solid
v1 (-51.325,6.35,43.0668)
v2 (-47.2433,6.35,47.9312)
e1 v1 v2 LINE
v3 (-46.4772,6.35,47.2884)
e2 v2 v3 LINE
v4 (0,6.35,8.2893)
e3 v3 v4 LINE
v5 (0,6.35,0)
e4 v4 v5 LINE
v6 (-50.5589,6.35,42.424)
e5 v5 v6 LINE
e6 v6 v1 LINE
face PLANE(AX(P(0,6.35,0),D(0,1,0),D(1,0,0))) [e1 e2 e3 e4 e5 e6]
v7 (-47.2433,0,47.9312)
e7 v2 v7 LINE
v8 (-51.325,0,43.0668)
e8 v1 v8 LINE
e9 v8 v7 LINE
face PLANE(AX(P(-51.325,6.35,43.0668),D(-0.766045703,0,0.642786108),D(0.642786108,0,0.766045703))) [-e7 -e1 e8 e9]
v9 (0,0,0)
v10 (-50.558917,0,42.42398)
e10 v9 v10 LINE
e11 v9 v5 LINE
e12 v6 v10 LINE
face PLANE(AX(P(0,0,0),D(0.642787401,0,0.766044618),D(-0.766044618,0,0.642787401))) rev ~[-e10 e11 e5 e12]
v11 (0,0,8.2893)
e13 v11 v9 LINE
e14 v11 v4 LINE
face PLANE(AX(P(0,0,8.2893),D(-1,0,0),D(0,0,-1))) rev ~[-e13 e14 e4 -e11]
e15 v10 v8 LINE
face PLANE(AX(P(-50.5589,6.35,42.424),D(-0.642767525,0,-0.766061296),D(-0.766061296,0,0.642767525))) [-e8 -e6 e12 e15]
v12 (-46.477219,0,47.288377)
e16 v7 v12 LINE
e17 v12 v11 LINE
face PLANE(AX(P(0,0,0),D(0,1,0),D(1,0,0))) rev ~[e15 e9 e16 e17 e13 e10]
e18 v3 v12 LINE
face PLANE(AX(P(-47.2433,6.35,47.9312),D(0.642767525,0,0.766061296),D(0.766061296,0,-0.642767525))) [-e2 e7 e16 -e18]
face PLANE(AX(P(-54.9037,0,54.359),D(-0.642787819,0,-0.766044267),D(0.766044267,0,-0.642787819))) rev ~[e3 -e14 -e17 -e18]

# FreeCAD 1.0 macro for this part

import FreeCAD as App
import Part
import Sketcher
Q = App.Units.Quantity


def add_polygon(sketch, points):
    """Adds a closed chain of lines whose ends are joined by coincident constraints."""
    first, n = sketch.GeometryCount, len(points)
    for a, b in zip(points, points[1:] + points[:1]):
        sketch.addGeometry(Part.LineSegment(App.Vector(*a, 0), App.Vector(*b, 0)), False)
    for i in range(n):
        sketch.addConstraint(Sketcher.Constraint("Coincident", first + i, 2, first + (i + 1) % n, 1))

doc = App.newDocument("Part")
params = doc.addObject("Spreadsheet::Sheet", "Params")
for row, (alias, value) in enumerate([
    ("sketch1_length", "77 mm"),
    ("sketch1_length2", "6.35 mm"),
    ("pad1_length", "6.35 mm"),
    ("sketch2_length", "7 mm"),
    ("sketch2_length2", "4 mm"),
    ("sketch2_length3", "6.35 mm"),
    ("pocket1_length", "10 mm"),
    ("sketch3_length", "1 mm"),
    ("sketch3_length2", "6.35 mm"),
    ("pad2_length", "6.35 mm"),
], start=1):
    params.set(f"A{row}", alias)
    params.set(f"B{row}", "=" + value)
    params.setAlias(f"B{row}", alias)

body = doc.addObject("PartDesign::Body", "Body")

# Sketch on XZ plane
sketch1 = doc.addObject("Sketcher::SketchObject", "Sketch")
body.addObject(sketch1)
sketch1.AttachmentSupport = (doc.XZ_Plane, [""])
sketch1.MapMode = "FlatFace"
add_polygon(sketch1, [(0, 8), (0, 0), (-59, 49), (-55, 54)])  # lines 0-3
sketch1.addConstraint(Sketcher.Constraint("Vertical", 0))
sketch1.addConstraint(Sketcher.Constraint("Coincident", 0, 2, -1, 1))
sketch1.addConstraint(Sketcher.Constraint("Perpendicular", 1, 2))
sketch1.addConstraint(Sketcher.Constraint("Perpendicular", 2, 3))
sketch1.addConstraint(Sketcher.Constraint("Angle", 3, Q("-40 deg")))
sketch1.addConstraint(Sketcher.Constraint("Distance", 1, Q("77 mm")))
sketch1.addConstraint(Sketcher.Constraint("Distance", 2, Q("6.35 mm")))
sketch1.setExpression("Constraints[9]", "Params.sketch1_length")
sketch1.setExpression("Constraints[10]", "Params.sketch1_length2")
pad1 = doc.addObject("PartDesign::Pad", "Pad")
body.addObject(pad1)
pad1.Profile = sketch1
pad1.setExpression("Length", "Params.pad1_length")
pad1.Reversed = True

# Sketch on XZ plane
sketch2 = doc.addObject("Sketcher::SketchObject", "Sketch001")
body.addObject(sketch2)
sketch2.AttachmentSupport = (doc.XZ_Plane, [""])
sketch2.MapMode = "FlatFace"
sketch2.AttachmentOffset = App.Placement(App.Vector(0, 0, -6.35), App.Rotation())
add_polygon(sketch2, [(-53.6, 45), (-59, 49.5), (-54.9, 54.4), (-46.5, 47.3), (-50.6, 42.4)])  # lines 0-4
sketch2.addConstraint(Sketcher.Constraint("Perpendicular", 0, 1))
sketch2.addConstraint(Sketcher.Constraint("Perpendicular", 1, 2))
sketch2.addConstraint(Sketcher.Constraint("Perpendicular", 2, 3))
sketch2.addConstraint(Sketcher.Constraint("Perpendicular", 3, 4))
sketch2.addConstraint(Sketcher.Constraint("Distance", 0, Q("7 mm")))
sketch2.addConstraint(Sketcher.Constraint("Distance", 4, Q("4 mm")))
sketch2.addConstraint(Sketcher.Constraint("Angle", 0, Q("140 deg")))
sketch2.addConstraint(Sketcher.Constraint("Distance", 1, Q("6.35 mm")))
sketch2.addConstraint(Sketcher.Constraint("DistanceY", -1, 1, 1, 2, Q("54.359 mm")))
sketch2.addConstraint(Sketcher.Constraint("DistanceX", 3, 2, -1, 1, Q("50.559 mm")))
sketch2.setExpression("Constraints[9]", "Params.sketch2_length")
sketch2.setExpression("Constraints[10]", "Params.sketch2_length2")
sketch2.setExpression("Constraints[12]", "Params.sketch2_length3")
pocket1 = doc.addObject("PartDesign::Pocket", "Pocket")
body.addObject(pocket1)
pocket1.Profile = sketch2
pocket1.setExpression("Length", "Params.pocket1_length")
pocket1.Reversed = True

# Sketch on XZ plane
sketch3 = doc.addObject("Sketcher::SketchObject", "Sketch002")
body.addObject(sketch3)
sketch3.AttachmentSupport = (doc.XZ_Plane, [""])
sketch3.MapMode = "FlatFace"
sketch3.AttachmentOffset = App.Placement(App.Vector(0, 0, -6.35), App.Rotation())
add_polygon(sketch3, [(-46.5, 47.3), (-50.6, 42.4), (-51.3, 43.1), (-47.2, 47.9)])  # lines 0-3
sketch3.addConstraint(Sketcher.Constraint("Perpendicular", 0, 1))
sketch3.addConstraint(Sketcher.Constraint("Perpendicular", 1, 2))
sketch3.addConstraint(Sketcher.Constraint("Perpendicular", 2, 3))
sketch3.addConstraint(Sketcher.Constraint("Distance", 1, Q("1 mm")))
sketch3.addConstraint(Sketcher.Constraint("Distance", 0, Q("6.35 mm")))
sketch3.addConstraint(Sketcher.Constraint("Angle", 0, Q("-130 deg")))
sketch3.addConstraint(Sketcher.Constraint("DistanceX", 0, 2, -1, 1, Q("50.559 mm")))
sketch3.addConstraint(Sketcher.Constraint("DistanceY", -1, 1, 0, 2, Q("42.424 mm")))
sketch3.setExpression("Constraints[7]", "Params.sketch3_length")
sketch3.setExpression("Constraints[8]", "Params.sketch3_length2")
pad2 = doc.addObject("PartDesign::Pad", "Pad001")
body.addObject(pad2)
pad2.Profile = sketch3
pad2.setExpression("Length", "Params.pad2_length")

doc.recompute()
